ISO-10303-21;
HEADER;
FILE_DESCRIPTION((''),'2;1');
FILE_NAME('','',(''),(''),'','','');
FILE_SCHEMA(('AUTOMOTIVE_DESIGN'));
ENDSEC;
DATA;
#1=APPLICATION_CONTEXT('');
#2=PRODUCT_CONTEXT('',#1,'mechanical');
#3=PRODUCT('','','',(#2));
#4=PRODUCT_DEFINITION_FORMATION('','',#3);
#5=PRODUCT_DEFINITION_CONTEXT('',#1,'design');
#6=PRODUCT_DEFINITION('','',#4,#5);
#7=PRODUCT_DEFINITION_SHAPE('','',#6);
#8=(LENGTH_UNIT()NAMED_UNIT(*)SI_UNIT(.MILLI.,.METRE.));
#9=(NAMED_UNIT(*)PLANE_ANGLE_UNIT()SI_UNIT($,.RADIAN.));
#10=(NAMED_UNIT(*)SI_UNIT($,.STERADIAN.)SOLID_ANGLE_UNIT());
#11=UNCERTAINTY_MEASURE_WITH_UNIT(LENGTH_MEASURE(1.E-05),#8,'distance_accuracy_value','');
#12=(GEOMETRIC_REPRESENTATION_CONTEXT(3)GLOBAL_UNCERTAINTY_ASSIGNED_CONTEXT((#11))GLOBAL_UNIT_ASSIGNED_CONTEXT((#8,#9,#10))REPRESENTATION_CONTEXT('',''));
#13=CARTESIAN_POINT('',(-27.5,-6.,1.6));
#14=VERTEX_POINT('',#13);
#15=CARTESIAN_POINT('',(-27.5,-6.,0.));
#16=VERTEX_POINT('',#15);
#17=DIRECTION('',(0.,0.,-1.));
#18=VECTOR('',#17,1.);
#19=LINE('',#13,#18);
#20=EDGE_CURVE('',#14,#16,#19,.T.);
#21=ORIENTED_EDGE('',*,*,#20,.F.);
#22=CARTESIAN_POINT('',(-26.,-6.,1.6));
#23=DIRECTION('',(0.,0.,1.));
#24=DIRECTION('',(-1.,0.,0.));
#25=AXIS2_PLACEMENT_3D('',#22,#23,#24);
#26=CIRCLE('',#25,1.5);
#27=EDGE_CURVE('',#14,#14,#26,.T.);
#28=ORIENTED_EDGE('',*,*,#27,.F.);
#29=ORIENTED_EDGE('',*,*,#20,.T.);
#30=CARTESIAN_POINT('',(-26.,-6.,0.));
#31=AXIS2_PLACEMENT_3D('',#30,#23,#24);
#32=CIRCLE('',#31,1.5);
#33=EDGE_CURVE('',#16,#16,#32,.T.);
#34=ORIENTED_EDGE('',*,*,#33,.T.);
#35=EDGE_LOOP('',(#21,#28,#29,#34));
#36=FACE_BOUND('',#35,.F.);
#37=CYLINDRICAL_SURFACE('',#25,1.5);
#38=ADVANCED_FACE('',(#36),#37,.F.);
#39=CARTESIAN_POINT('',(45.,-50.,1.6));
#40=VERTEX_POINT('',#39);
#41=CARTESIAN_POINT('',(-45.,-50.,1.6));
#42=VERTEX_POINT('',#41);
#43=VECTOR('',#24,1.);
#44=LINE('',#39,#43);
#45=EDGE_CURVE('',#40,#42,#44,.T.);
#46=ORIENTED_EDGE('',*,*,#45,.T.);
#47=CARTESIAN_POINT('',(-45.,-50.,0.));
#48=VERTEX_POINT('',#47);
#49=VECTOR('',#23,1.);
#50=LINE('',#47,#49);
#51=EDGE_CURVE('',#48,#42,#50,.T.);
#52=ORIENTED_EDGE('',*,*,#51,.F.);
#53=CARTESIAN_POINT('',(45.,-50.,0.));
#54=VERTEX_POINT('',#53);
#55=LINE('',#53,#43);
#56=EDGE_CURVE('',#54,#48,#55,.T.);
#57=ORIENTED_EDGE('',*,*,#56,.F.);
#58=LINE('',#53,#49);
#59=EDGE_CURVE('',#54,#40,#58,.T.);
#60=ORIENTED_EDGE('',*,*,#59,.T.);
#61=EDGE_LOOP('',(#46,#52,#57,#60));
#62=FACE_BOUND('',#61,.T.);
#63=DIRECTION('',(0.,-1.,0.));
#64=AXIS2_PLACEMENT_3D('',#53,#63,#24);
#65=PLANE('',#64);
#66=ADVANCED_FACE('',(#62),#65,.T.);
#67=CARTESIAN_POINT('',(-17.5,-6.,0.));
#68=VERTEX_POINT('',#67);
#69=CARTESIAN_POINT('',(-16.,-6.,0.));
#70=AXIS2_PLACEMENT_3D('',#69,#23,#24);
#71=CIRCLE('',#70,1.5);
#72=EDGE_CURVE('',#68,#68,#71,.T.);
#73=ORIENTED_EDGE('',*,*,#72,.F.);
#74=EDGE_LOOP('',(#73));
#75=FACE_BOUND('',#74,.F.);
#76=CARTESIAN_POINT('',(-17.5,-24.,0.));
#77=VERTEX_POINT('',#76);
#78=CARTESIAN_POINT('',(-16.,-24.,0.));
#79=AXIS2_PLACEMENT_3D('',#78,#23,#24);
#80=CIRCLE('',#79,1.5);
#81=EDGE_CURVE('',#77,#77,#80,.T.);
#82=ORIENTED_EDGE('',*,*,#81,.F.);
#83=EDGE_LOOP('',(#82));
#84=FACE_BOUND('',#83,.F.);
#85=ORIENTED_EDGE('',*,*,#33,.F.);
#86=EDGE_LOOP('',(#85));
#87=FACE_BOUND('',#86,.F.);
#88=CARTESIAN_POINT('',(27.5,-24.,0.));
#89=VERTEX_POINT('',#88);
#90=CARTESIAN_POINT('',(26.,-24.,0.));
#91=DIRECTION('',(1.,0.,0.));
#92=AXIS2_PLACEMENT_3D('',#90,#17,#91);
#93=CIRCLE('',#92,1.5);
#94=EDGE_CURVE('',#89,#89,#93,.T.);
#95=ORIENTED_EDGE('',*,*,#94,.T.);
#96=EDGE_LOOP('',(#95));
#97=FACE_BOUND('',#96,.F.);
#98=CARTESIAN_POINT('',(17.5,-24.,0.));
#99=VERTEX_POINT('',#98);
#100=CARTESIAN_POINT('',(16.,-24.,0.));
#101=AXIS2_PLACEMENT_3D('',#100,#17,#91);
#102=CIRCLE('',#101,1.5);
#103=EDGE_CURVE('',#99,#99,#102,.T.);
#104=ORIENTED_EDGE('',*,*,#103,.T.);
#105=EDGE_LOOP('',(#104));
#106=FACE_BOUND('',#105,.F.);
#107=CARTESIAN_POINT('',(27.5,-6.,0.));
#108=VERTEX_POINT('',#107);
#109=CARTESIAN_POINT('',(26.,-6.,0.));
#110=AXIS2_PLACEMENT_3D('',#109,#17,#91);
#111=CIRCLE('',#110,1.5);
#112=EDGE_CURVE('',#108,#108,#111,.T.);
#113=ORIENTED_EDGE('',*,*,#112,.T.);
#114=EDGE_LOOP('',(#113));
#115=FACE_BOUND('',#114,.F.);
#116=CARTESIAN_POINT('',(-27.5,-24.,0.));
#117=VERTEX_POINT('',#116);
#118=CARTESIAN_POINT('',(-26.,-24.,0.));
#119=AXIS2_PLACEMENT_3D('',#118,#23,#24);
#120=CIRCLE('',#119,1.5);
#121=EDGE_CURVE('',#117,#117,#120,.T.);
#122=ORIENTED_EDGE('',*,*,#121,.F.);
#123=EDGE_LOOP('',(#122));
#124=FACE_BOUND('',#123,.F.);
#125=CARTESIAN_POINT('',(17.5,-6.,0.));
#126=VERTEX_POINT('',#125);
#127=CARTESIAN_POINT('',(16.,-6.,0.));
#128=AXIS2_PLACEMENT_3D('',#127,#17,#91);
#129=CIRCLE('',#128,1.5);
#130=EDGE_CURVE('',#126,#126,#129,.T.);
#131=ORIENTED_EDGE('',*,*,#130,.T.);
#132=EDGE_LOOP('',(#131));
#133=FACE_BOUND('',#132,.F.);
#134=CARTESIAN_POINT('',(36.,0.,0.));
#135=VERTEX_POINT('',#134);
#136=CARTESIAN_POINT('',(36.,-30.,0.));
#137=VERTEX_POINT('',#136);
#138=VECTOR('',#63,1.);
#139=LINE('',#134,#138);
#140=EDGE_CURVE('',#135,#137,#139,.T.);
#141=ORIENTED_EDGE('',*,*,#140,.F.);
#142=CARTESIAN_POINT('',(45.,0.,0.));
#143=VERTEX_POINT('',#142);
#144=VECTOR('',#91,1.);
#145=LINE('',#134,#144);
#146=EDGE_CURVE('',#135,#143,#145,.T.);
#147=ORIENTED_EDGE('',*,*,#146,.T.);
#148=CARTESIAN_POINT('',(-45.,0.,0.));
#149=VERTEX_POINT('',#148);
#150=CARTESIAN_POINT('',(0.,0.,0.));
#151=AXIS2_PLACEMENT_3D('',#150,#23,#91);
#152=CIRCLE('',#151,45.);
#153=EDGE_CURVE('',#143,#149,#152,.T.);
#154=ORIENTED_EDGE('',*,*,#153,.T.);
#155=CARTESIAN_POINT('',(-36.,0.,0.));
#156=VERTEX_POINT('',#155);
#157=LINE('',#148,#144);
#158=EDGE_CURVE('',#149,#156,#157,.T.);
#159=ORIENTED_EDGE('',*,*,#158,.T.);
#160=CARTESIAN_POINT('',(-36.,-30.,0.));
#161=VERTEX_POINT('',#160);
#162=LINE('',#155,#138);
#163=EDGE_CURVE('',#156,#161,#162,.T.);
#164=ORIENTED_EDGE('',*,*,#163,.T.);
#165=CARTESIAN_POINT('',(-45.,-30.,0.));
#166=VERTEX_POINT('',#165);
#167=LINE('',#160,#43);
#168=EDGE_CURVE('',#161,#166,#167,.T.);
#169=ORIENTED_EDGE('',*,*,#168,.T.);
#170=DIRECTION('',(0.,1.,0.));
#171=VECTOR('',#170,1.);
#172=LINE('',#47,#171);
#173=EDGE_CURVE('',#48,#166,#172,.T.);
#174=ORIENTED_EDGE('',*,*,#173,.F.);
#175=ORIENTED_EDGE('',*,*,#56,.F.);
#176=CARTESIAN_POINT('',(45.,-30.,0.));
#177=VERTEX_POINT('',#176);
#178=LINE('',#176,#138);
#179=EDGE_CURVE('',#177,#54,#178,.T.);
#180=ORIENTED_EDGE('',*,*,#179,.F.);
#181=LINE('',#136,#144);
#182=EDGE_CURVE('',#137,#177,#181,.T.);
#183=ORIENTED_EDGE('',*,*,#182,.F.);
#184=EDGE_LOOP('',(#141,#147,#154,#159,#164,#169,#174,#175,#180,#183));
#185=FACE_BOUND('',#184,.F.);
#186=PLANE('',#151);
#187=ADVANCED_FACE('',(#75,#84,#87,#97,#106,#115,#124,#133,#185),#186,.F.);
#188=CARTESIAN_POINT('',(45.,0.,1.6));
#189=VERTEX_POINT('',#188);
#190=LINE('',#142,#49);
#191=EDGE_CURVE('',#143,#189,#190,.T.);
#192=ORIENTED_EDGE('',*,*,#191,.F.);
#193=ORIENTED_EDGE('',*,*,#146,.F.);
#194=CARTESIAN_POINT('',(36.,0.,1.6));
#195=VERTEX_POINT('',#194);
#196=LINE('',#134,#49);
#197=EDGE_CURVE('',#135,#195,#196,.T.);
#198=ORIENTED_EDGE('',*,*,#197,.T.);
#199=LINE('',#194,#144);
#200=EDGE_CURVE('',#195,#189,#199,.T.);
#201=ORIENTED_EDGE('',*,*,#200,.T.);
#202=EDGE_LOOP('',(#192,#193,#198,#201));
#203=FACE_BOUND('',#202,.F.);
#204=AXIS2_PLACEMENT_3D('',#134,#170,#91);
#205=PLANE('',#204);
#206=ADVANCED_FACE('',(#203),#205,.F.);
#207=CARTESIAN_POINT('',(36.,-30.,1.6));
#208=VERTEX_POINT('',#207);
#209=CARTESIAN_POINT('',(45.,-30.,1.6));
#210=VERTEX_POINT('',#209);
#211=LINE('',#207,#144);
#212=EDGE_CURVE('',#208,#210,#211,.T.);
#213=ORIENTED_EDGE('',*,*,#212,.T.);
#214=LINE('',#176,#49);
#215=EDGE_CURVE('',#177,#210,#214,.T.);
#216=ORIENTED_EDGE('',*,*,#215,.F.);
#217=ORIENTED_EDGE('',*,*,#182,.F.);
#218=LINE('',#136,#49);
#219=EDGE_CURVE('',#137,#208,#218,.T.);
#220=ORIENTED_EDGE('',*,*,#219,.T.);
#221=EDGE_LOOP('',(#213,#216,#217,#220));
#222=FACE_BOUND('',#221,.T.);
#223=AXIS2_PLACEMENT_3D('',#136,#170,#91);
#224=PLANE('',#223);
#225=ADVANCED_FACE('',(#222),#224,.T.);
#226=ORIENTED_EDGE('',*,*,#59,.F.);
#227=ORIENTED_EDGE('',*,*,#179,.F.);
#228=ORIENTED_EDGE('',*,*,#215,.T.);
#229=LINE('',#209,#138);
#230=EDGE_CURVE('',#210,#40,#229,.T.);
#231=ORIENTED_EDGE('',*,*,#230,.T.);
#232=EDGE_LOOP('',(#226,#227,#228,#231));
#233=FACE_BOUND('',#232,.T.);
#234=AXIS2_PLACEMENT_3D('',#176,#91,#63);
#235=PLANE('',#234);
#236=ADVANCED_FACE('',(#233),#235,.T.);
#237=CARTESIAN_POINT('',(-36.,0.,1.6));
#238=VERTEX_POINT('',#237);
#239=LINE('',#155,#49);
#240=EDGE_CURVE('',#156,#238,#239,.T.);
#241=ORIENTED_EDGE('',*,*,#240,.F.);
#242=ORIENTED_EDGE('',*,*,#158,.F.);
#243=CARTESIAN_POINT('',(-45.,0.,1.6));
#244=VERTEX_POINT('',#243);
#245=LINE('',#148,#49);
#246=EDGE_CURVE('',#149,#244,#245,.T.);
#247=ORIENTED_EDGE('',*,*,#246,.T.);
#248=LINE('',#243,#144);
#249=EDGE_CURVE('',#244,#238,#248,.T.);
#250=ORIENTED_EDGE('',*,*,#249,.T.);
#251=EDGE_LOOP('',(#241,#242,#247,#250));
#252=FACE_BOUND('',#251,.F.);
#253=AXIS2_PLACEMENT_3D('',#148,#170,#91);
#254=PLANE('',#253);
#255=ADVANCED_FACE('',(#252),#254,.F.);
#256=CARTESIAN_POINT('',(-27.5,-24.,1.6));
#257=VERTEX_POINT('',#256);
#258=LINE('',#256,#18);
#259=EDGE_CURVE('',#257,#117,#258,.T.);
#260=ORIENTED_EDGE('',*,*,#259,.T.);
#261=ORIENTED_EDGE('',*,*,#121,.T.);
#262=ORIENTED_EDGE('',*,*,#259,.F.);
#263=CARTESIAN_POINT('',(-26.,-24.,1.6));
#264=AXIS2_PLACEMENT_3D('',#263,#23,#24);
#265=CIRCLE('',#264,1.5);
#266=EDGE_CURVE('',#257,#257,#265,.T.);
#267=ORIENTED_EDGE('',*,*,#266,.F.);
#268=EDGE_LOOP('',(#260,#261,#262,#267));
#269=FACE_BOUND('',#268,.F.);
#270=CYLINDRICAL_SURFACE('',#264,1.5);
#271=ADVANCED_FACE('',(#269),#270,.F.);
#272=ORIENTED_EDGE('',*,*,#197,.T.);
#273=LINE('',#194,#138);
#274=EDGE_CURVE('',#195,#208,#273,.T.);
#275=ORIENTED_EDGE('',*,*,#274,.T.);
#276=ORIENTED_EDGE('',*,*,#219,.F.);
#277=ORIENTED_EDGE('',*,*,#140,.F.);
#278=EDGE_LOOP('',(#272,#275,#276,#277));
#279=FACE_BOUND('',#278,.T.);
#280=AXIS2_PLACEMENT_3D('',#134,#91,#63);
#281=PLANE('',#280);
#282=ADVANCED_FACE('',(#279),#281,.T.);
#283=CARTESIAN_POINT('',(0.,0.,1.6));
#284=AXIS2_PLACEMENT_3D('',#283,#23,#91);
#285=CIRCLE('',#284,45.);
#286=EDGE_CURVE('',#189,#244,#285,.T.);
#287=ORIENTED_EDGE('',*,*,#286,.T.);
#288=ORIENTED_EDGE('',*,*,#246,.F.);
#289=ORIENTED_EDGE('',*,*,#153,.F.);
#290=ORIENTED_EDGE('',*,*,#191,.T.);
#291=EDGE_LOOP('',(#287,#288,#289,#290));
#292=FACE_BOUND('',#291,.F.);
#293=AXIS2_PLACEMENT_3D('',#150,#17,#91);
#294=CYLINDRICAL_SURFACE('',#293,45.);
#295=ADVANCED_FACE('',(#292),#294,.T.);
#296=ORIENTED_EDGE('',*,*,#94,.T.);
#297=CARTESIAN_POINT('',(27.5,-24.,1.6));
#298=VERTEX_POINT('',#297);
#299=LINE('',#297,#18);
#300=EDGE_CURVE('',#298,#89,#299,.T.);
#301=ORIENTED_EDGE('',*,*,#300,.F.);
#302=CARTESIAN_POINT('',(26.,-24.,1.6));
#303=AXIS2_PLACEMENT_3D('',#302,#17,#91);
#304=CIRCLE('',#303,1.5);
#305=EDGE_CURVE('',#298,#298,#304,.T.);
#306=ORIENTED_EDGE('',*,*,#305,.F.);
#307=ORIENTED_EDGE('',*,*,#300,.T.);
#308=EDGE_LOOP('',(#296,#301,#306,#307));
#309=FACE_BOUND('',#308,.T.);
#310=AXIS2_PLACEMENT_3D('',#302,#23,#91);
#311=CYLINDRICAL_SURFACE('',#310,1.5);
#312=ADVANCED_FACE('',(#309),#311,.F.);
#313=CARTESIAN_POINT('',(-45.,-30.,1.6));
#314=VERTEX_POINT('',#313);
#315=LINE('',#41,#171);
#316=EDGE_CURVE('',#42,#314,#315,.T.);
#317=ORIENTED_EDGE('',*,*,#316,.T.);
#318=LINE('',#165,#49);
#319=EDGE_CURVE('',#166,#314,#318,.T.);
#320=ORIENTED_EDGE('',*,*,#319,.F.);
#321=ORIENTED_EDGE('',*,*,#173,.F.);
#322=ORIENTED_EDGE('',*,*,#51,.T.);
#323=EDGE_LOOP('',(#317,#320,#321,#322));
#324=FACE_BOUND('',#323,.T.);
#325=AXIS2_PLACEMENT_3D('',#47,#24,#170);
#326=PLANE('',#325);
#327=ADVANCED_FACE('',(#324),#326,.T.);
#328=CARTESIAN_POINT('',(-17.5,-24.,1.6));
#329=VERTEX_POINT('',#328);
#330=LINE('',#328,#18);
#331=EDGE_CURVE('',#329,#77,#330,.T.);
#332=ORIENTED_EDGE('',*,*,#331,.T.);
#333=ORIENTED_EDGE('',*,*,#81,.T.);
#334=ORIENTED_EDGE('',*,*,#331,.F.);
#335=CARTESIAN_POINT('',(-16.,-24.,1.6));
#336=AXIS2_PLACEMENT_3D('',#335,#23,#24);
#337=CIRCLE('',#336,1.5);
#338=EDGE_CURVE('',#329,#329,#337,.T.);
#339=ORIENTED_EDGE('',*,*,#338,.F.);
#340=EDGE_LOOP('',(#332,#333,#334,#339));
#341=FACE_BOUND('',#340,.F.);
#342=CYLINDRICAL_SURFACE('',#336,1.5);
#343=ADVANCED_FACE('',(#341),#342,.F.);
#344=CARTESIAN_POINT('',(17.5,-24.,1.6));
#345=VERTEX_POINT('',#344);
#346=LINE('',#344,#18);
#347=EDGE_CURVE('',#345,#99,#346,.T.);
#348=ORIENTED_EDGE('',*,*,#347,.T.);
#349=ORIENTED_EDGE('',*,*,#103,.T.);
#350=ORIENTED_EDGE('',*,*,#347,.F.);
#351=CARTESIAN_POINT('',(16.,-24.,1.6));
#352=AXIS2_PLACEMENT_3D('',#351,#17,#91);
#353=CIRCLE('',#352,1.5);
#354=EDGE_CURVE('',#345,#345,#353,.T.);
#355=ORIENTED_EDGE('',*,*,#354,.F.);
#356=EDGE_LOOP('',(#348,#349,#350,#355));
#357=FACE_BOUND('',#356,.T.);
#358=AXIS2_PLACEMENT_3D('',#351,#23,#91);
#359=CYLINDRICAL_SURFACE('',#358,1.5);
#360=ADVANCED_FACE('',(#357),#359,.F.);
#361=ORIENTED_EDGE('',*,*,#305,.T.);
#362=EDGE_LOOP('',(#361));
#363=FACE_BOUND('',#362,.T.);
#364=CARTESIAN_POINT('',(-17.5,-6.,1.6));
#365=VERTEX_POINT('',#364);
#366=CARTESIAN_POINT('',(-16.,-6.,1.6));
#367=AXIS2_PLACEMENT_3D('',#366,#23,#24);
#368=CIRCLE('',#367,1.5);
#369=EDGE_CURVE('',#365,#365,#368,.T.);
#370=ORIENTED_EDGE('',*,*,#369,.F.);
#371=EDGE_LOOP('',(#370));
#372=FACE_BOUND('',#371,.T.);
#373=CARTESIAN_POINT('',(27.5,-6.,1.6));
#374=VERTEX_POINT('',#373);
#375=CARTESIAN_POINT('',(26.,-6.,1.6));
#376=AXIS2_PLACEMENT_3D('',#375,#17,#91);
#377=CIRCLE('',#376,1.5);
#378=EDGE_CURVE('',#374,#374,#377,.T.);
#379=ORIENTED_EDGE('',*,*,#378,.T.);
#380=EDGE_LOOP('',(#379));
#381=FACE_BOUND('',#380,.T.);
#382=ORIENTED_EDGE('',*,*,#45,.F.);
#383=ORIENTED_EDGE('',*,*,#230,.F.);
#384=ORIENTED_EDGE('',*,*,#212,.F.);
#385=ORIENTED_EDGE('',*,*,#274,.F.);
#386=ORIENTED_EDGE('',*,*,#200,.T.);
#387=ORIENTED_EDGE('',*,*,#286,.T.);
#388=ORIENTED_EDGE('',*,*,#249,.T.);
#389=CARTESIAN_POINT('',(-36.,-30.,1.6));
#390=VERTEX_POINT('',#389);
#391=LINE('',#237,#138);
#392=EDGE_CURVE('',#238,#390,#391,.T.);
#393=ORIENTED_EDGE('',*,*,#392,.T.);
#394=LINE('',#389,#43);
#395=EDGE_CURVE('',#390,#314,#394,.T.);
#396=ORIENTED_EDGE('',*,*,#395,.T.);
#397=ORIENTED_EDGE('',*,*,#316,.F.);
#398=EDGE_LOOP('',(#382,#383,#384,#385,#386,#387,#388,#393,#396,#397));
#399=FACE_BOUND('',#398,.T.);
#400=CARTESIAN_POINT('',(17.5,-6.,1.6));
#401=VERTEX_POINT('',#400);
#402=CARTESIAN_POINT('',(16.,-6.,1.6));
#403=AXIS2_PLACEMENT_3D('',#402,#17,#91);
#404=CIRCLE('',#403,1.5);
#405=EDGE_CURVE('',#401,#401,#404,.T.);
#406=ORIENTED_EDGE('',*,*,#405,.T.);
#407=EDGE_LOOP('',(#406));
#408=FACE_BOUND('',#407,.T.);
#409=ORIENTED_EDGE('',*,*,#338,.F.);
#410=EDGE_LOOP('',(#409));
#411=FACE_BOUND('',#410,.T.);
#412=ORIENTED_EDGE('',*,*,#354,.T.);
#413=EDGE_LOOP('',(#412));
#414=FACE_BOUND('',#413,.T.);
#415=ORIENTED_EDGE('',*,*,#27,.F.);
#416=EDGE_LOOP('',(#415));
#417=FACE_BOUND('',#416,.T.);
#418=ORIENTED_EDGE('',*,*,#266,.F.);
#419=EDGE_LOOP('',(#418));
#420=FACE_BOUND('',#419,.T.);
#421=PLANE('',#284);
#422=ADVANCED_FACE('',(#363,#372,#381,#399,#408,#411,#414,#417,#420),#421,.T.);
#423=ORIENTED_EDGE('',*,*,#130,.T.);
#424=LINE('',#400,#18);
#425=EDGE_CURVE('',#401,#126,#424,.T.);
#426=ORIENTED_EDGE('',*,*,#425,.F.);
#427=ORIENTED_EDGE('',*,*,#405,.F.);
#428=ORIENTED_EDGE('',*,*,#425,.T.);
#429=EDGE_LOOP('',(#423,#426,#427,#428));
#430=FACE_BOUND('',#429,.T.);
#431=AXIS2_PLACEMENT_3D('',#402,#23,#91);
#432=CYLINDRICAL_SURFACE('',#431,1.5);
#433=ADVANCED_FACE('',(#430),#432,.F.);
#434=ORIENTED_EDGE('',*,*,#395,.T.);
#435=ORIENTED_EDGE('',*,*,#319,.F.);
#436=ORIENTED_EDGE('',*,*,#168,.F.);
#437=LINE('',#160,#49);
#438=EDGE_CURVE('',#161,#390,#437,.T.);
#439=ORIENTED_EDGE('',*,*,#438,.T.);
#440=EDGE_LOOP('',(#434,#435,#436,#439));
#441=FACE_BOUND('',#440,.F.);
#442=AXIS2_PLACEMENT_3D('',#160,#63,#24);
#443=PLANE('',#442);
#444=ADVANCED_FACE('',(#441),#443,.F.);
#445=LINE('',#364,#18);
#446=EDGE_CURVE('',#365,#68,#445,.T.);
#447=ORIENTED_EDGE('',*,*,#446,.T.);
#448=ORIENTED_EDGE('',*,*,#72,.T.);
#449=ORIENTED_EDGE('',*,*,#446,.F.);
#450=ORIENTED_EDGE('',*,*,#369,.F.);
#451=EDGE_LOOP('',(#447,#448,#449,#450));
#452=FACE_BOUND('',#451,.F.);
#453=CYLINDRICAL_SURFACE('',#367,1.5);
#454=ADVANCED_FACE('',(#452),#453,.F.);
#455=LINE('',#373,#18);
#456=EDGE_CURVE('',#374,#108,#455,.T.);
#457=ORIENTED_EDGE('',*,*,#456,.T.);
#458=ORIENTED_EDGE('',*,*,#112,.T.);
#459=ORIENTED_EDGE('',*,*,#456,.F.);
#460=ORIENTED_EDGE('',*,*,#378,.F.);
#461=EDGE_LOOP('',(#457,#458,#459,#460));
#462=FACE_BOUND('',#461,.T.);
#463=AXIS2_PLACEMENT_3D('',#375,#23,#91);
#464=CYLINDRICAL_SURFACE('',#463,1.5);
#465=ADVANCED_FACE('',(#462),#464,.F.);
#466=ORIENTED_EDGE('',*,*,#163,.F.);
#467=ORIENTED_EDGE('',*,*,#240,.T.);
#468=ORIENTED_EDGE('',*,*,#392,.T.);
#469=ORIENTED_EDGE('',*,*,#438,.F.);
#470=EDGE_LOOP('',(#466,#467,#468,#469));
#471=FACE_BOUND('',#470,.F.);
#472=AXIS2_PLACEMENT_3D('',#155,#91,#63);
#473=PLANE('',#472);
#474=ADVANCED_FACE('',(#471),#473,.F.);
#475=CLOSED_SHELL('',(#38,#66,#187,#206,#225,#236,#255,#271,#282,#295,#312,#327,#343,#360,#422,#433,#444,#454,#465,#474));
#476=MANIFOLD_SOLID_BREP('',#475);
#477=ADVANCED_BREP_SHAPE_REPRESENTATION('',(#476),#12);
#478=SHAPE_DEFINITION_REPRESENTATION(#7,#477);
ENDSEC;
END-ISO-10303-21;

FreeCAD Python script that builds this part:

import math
import FreeCAD as App
import Part
import Sketcher
from FreeCAD import Vector

doc = App.newDocument("Part")
body = doc.addObject("PartDesign::Body", "Body")

# Sketch on XY plane
sketch1 = body.newObject("Sketcher::SketchObject", "Sketch")
sketch1.AttachmentSupport = (doc.getObject("XY_Plane"), [""])
sketch1.MapMode = "FlatFace"
sketch1.addGeometry(Part.LineSegment(Vector(45, -50, 0), Vector(45, -30, 0)), False)
sketch1.addGeometry(Part.LineSegment(Vector(45, -30, 0), Vector(36, -30, 0)), False)
sketch1.addGeometry(Part.LineSegment(Vector(36, -30, 0), Vector(36, 0, 0)), False)
sketch1.addGeometry(Part.LineSegment(Vector(36, 0, 0), Vector(45, 0, 0)), False)
sketch1.addGeometry(Part.ArcOfCircle(Part.Circle(Vector(0, 0, 0), Vector(0, 0, 1), 45), math.radians(0), math.radians(180)), False)
sketch1.addGeometry(Part.LineSegment(Vector(-45, 0, 0), Vector(-36, 0, 0)), False)
sketch1.addGeometry(Part.LineSegment(Vector(-36, 0, 0), Vector(-36, -30, 0)), False)
sketch1.addGeometry(Part.LineSegment(Vector(-36, -30, 0), Vector(-45, -30, 0)), False)
sketch1.addGeometry(Part.LineSegment(Vector(-45, -30, 0), Vector(-45, -50, 0)), False)
sketch1.addGeometry(Part.LineSegment(Vector(-45, -50, 0), Vector(45, -50, 0)), False)
sketch1.addConstraint(Sketcher.Constraint("Coincident", 0, 2, 1, 1))
sketch1.addConstraint(Sketcher.Constraint("Coincident", 1, 2, 2, 1))
sketch1.addConstraint(Sketcher.Constraint("Coincident", 2, 2, 3, 1))
sketch1.addConstraint(Sketcher.Constraint("Coincident", 3, 2, 4, 1))
sketch1.addConstraint(Sketcher.Constraint("Coincident", 4, 2, 5, 1))
sketch1.addConstraint(Sketcher.Constraint("Coincident", 5, 2, 6, 1))
sketch1.addConstraint(Sketcher.Constraint("Coincident", 6, 2, 7, 1))
sketch1.addConstraint(Sketcher.Constraint("Coincident", 7, 2, 8, 1))
sketch1.addConstraint(Sketcher.Constraint("Coincident", 8, 2, 9, 1))
sketch1.addConstraint(Sketcher.Constraint("Coincident", 9, 2, 0, 1))
sketch1.addConstraint(Sketcher.Constraint("Vertical", 0))
sketch1.addConstraint(Sketcher.Constraint("Horizontal", 1))
sketch1.addConstraint(Sketcher.Constraint("Vertical", 2))
sketch1.addConstraint(Sketcher.Constraint("Horizontal", 3))
sketch1.addConstraint(Sketcher.Constraint("Horizontal", 5))
sketch1.addConstraint(Sketcher.Constraint("Vertical", 6))
sketch1.addConstraint(Sketcher.Constraint("Horizontal", 7))
sketch1.addConstraint(Sketcher.Constraint("Vertical", 8))
sketch1.addConstraint(Sketcher.Constraint("Horizontal", 9))
sketch1.addConstraint(Sketcher.Constraint("Coincident", 4, 3, -1, 1))
sketch1.addConstraint(Sketcher.Constraint("Symmetric", 2, 2, 5, 2, -1, 1))
sketch1.addConstraint(Sketcher.Constraint("Symmetric", 0, 2, 7, 2, -2))
sketch1.addConstraint(Sketcher.Constraint("PointOnObject", 2, 2, -1))
sketch1.addConstraint(Sketcher.Constraint("Vertical", 0, 2, 3, 2))
sketch1.addConstraint(Sketcher.Constraint("Radius", 4, 45.0))
sketch1.addConstraint(Sketcher.Constraint("DistanceX", 1, 2, 1, 1, 9.0))
sketch1.addConstraint(Sketcher.Constraint("DistanceY", 2, 1, 2, 2, 30.0))
sketch1.addConstraint(Sketcher.Constraint("DistanceY", 8, 2, -1, 1, 50.0))
pad1 = body.newObject("PartDesign::Pad", "Pad")
pad1.Profile = sketch1
pad1.Length = 1.6

# Sketch on XY plane
sketch2 = body.newObject("Sketcher::SketchObject", "Sketch001")
sketch2.AttachmentSupport = (doc.getObject("XY_Plane"), [""])
sketch2.MapMode = "FlatFace"
sketch2.AttachmentOffset = App.Placement(Vector(0, 0, 1.6), App.Rotation())
sketch2.addGeometry(Part.Circle(Vector(-26, -24, 0), Vector(0, 0, 1), 1.5), False)
sketch2.addGeometry(Part.Circle(Vector(-16, -24, 0), Vector(0, 0, 1), 1.5), False)
sketch2.addGeometry(Part.Circle(Vector(-26, -6, 0), Vector(0, 0, 1), 1.5), False)
sketch2.addGeometry(Part.Circle(Vector(-16, -6, 0), Vector(0, 0, 1), 1.5), False)
sketch2.addConstraint(Sketcher.Constraint("Equal", 0, 1))
sketch2.addConstraint(Sketcher.Constraint("Equal", 1, 2))
sketch2.addConstraint(Sketcher.Constraint("Equal", 2, 3))
sketch2.addConstraint(Sketcher.Constraint("Horizontal", 0, 3, 1, 3))
sketch2.addConstraint(Sketcher.Constraint("Horizontal", 2, 3, 3, 3))
sketch2.addConstraint(Sketcher.Constraint("Vertical", 0, 3, 2, 3))
sketch2.addConstraint(Sketcher.Constraint("Vertical", 1, 3, 3, 3))
sketch2.addConstraint(Sketcher.Constraint("Diameter", 0, 3.0))
sketch2.addConstraint(Sketcher.Constraint("DistanceY", 2, 3, -1, 1, 6.0))
sketch2.addConstraint(Sketcher.Constraint("DistanceX", 0, 3, 1, 3, 10.0))
sketch2.addConstraint(Sketcher.Constraint("DistanceX", 0, 3, -1, 1, 26.0))
sketch2.addConstraint(Sketcher.Constraint("DistanceY", 0, 3, -1, 1, 24.0))
pocket1 = body.newObject("PartDesign::Pocket", "Pocket")
pocket1.Profile = sketch2
pocket1.Length = 1.6
doc.recompute()

mirrored = body.newObject("PartDesign::Mirrored", "Mirrored")
mirrored.Originals = [pocket1]
mirrored.MirrorPlane = (doc.getObject("YZ_Plane"), [""])
body.Tip = mirrored

doc.recompute()
